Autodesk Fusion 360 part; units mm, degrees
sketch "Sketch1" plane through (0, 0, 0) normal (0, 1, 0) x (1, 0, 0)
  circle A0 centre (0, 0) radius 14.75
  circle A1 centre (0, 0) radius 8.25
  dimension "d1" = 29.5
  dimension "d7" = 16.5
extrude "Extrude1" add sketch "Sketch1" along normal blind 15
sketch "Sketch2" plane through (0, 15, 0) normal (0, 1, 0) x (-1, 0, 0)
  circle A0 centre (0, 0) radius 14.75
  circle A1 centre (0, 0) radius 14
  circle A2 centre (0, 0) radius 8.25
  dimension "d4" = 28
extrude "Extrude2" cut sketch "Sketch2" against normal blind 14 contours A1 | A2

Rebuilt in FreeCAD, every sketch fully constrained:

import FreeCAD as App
import Part
import Sketcher

V = App.Vector

doc = App.newDocument("Part")
body = doc.addObject("PartDesign::Body", "Body")

# Sketch on XZ plane
sketch1 = doc.addObject("Sketcher::SketchObject", "Sketch")
body.addObject(sketch1)
sketch1.AttachmentSupport = (doc.XZ_Plane, [""])
sketch1.MapMode = "FlatFace"
sketch1.addGeometry([
    Part.Circle(V(0, 0, 0), V(0, 0, 1), 14.75),
    Part.Circle(V(0, 0, 0), V(0, 0, 1), 8.25),
], False)
sketch1.addConstraint([
    Sketcher.Constraint("Coincident", 0, 3, -1, 1),
    Sketcher.Constraint("Coincident", 1, 3, -1, 1),
    Sketcher.Constraint("Diameter", 0, 29.5),
    Sketcher.Constraint("Diameter", 1, 16.5),
])
pad1 = doc.addObject("PartDesign::Pad", "Pad")
body.addObject(pad1)
pad1.Profile = sketch1
pad1.Length = 15
pad1.Reversed = True

# Sketch on XZ plane
sketch2 = doc.addObject("Sketcher::SketchObject", "Sketch001")
body.addObject(sketch2)
sketch2.AttachmentSupport = (doc.XZ_Plane, [""])
sketch2.MapMode = "FlatFace"
sketch2.AttachmentOffset = App.Placement(V(0, 0, -15), App.Rotation())
sketch2.addGeometry(Part.Circle(V(0, 0, 0), V(0, 0, 1), 14), False)
sketch2.addConstraint([
    Sketcher.Constraint("Coincident", 0, 3, -1, 1),
    Sketcher.Constraint("Diameter", 0, 28.0),
])
pocket1 = doc.addObject("PartDesign::Pocket", "Pocket")
body.addObject(pocket1)
pocket1.Profile = sketch2
pocket1.Length = 14
pocket1.Reversed = True

doc.recompute()
